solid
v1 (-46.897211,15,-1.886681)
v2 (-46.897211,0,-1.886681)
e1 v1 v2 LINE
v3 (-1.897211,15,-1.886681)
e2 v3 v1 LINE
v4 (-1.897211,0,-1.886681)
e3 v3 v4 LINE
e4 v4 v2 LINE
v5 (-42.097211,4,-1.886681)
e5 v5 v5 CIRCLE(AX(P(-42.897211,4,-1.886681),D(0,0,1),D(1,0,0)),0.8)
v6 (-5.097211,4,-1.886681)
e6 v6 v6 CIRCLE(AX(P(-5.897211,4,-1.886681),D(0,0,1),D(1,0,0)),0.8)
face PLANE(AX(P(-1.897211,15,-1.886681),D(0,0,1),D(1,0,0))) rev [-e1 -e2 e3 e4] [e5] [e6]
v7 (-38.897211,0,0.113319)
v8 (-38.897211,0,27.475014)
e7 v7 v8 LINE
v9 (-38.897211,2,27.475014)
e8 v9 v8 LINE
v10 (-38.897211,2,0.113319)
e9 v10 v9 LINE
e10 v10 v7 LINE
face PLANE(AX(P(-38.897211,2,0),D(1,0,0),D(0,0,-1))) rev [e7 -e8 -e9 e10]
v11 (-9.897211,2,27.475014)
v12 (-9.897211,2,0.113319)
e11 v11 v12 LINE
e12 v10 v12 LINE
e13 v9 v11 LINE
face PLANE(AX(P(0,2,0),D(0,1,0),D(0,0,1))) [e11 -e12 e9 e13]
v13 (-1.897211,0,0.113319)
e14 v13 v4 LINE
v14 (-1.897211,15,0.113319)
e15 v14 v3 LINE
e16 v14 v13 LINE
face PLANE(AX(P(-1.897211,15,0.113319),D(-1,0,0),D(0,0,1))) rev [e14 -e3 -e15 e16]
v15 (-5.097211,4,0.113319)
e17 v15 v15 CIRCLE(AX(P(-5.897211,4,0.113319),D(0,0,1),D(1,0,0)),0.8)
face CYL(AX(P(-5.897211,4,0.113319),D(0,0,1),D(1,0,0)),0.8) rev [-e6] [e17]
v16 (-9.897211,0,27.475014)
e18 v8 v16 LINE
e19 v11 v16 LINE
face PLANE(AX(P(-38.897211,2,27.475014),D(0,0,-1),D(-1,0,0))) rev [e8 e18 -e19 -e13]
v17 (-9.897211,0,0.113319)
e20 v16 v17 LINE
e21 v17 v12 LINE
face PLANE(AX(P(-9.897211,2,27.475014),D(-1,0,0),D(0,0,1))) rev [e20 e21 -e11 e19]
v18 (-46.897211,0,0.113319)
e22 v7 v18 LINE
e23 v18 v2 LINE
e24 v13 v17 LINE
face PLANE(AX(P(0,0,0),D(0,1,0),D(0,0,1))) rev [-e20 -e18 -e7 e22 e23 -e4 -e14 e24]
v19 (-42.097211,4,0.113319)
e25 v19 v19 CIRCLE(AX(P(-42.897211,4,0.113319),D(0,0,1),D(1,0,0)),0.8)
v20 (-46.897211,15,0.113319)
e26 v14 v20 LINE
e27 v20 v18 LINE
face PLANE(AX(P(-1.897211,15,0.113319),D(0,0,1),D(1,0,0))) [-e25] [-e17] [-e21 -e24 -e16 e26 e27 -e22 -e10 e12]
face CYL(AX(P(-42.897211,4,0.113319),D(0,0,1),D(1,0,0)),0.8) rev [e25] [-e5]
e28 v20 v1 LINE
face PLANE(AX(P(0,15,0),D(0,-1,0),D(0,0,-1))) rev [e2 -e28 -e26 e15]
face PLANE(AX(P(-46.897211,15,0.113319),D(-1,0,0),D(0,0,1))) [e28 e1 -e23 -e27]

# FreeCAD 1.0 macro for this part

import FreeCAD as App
import Part
import Sketcher
Q = App.Units.Quantity

doc = App.newDocument("Part")
params = doc.addObject("Spreadsheet::Sheet", "Params")
for row, (alias, value) in enumerate([
    ("sketch1_width", "29 mm"),
    ("pad1_length", "2 mm"),
    ("sketch2_width", "45 mm"),
    ("sketch2_height", "2 mm"),
    ("pad2_length", "15 mm"),
    ("sketch3_diameter", "1.6 mm"),
    ("hole_diameter", "1.6 mm"),
    ("sketch4_diameter", "1.6 mm"),
    ("hole2_diameter", "1.6 mm"),
], start=1):
    params.set(f"A{row}", alias)
    params.set(f"B{row}", "=" + value)
    params.setAlias(f"B{row}", alias)

body = doc.addObject("PartDesign::Body", "Body")

sketch1 = doc.addObject("Sketcher::SketchObject", "Sketch")
body.addObject(sketch1)
sketch1.AttachmentSupport = (doc.XZ_Plane, [""])
sketch1.MapMode = "FlatFace"
sketch1.addGeometry([
    Part.LineSegment(App.Vector(-38.897211, 0, 0), App.Vector(-38.897211, 27.475014, 0)),
    Part.LineSegment(App.Vector(-38.897211, 27.475014, 0), App.Vector(-9.897211, 27.475014, 0)),
    Part.LineSegment(App.Vector(-9.897211, 27.475014, 0), App.Vector(-9.897211, 0, 0)),
    Part.LineSegment(App.Vector(-9.897211, 0, 0), App.Vector(-38.897211, 0, 0)),
], False)
sketch1.addConstraint([
    Sketcher.Constraint("Coincident", 0, 2, 1, 1),
    Sketcher.Constraint("Coincident", 1, 2, 2, 1),
    Sketcher.Constraint("Coincident", 2, 2, 3, 1),
    Sketcher.Constraint("Coincident", 3, 2, 0, 1),
    Sketcher.Constraint("Vertical", 0),
    Sketcher.Constraint("Horizontal", 1),
    Sketcher.Constraint("Vertical", 2),
    Sketcher.Constraint("Horizontal", 3),
    Sketcher.Constraint("PointOnObject", 2, 2, -1),
    Sketcher.Constraint("DistanceX", 1, 1, 1, 2, Q("29 mm")),
    Sketcher.Constraint("DistanceY", 0, 1, 0, 2, Q("27.475014 mm")),
    Sketcher.Constraint("DistanceX", 0, 2, -1, 1, Q("38.897211 mm")),
])
sketch1.setExpression("Constraints[9]", "Params.sketch1_width")
pad1 = doc.addObject("PartDesign::Pad", "Pad")
body.addObject(pad1)
pad1.Profile = sketch1
pad1.setExpression("Length", "Params.pad1_length")
pad1.Reversed = True

sketch2 = doc.addObject("Sketcher::SketchObject", "Sketch001")
body.addObject(sketch2)
sketch2.AttachmentSupport = (doc.XZ_Plane, [""])
sketch2.MapMode = "FlatFace"
sketch2.addGeometry([
    Part.LineSegment(App.Vector(-1.897211, -1.886681, 0), App.Vector(-1.897211, 0.113319, 0)),
    Part.LineSegment(App.Vector(-1.897211, 0.113319, 0), App.Vector(-46.897211, 0.113319, 0)),
    Part.LineSegment(App.Vector(-46.897211, 0.113319, 0), App.Vector(-46.897211, -1.886681, 0)),
    Part.LineSegment(App.Vector(-46.897211, -1.886681, 0), App.Vector(-1.897211, -1.886681, 0)),
], False)
sketch2.addConstraint([
    Sketcher.Constraint("Coincident", 0, 2, 1, 1),
    Sketcher.Constraint("Coincident", 1, 2, 2, 1),
    Sketcher.Constraint("Coincident", 2, 2, 3, 1),
    Sketcher.Constraint("Coincident", 3, 2, 0, 1),
    Sketcher.Constraint("Vertical", 0),
    Sketcher.Constraint("Horizontal", 1),
    Sketcher.Constraint("Vertical", 2),
    Sketcher.Constraint("Horizontal", 3),
    Sketcher.Constraint("DistanceX", 1, 2, 1, 1, Q("45 mm")),
    Sketcher.Constraint("DistanceY", 0, 1, 0, 2, Q("2 mm")),
    Sketcher.Constraint("DistanceX", 0, 2, -1, 1, Q("1.897211 mm")),
    Sketcher.Constraint("DistanceY", -1, 1, 0, 2, Q("0.113319 mm")),
])
sketch2.setExpression("Constraints[8]", "Params.sketch2_width")
sketch2.setExpression("Constraints[9]", "Params.sketch2_height")
pad2 = doc.addObject("PartDesign::Pad", "Pad001")
body.addObject(pad2)
pad2.Profile = sketch2
pad2.setExpression("Length", "Params.pad2_length")
pad2.Reversed = True

sketch3 = doc.addObject("Sketcher::SketchObject", "Sketch002")
body.addObject(sketch3)
sketch3.AttachmentSupport = (doc.XY_Plane, [""])
sketch3.MapMode = "FlatFace"
sketch3.AttachmentOffset = App.Placement(App.Vector(0, 0, 0.113319), App.Rotation())
sketch3.addGeometry(Part.Circle(App.Vector(-42.897211, 4, 0), App.Vector(0, 0, 1), 0.8), False)
sketch3.addConstraint([
    Sketcher.Constraint("Diameter", 0, Q("1.6 mm")),
    Sketcher.Constraint("DistanceY", -1, 1, 0, 3, Q("4 mm")),
    Sketcher.Constraint("DistanceX", 0, 3, -1, 1, Q("42.897211 mm")),
])
sketch3.setExpression("Constraints[0]", "Params.sketch3_diameter")
doc.recompute()
hole = doc.addObject("PartDesign::Hole", "Hole")
body.addObject(hole)
hole.Profile = sketch3
hole.ThreadType = "None"
hole.setExpression("Diameter", "Params.hole_diameter")
hole.DepthType = "ThroughAll"

sketch4 = doc.addObject("Sketcher::SketchObject", "Sketch003")
body.addObject(sketch4)
sketch4.AttachmentSupport = (doc.XY_Plane, [""])
sketch4.MapMode = "FlatFace"
sketch4.AttachmentOffset = App.Placement(App.Vector(0, 0, 0.113319), App.Rotation())
sketch4.addGeometry(Part.Circle(App.Vector(-5.897211, 4, 0), App.Vector(0, 0, 1), 0.8), False)
sketch4.addConstraint([
    Sketcher.Constraint("Diameter", 0, Q("1.6 mm")),
    Sketcher.Constraint("DistanceY", -1, 1, 0, 3, Q("4 mm")),
    Sketcher.Constraint("DistanceX", 0, 3, -1, 1, Q("5.897211 mm")),
])
sketch4.setExpression("Constraints[0]", "Params.sketch4_diameter")
doc.recompute()
hole2 = doc.addObject("PartDesign::Hole", "Hole001")
body.addObject(hole2)
hole2.Profile = sketch4
hole2.ThreadType = "None"
hole2.setExpression("Diameter", "Params.hole2_diameter")
hole2.DepthType = "ThroughAll"

doc.recompute()
